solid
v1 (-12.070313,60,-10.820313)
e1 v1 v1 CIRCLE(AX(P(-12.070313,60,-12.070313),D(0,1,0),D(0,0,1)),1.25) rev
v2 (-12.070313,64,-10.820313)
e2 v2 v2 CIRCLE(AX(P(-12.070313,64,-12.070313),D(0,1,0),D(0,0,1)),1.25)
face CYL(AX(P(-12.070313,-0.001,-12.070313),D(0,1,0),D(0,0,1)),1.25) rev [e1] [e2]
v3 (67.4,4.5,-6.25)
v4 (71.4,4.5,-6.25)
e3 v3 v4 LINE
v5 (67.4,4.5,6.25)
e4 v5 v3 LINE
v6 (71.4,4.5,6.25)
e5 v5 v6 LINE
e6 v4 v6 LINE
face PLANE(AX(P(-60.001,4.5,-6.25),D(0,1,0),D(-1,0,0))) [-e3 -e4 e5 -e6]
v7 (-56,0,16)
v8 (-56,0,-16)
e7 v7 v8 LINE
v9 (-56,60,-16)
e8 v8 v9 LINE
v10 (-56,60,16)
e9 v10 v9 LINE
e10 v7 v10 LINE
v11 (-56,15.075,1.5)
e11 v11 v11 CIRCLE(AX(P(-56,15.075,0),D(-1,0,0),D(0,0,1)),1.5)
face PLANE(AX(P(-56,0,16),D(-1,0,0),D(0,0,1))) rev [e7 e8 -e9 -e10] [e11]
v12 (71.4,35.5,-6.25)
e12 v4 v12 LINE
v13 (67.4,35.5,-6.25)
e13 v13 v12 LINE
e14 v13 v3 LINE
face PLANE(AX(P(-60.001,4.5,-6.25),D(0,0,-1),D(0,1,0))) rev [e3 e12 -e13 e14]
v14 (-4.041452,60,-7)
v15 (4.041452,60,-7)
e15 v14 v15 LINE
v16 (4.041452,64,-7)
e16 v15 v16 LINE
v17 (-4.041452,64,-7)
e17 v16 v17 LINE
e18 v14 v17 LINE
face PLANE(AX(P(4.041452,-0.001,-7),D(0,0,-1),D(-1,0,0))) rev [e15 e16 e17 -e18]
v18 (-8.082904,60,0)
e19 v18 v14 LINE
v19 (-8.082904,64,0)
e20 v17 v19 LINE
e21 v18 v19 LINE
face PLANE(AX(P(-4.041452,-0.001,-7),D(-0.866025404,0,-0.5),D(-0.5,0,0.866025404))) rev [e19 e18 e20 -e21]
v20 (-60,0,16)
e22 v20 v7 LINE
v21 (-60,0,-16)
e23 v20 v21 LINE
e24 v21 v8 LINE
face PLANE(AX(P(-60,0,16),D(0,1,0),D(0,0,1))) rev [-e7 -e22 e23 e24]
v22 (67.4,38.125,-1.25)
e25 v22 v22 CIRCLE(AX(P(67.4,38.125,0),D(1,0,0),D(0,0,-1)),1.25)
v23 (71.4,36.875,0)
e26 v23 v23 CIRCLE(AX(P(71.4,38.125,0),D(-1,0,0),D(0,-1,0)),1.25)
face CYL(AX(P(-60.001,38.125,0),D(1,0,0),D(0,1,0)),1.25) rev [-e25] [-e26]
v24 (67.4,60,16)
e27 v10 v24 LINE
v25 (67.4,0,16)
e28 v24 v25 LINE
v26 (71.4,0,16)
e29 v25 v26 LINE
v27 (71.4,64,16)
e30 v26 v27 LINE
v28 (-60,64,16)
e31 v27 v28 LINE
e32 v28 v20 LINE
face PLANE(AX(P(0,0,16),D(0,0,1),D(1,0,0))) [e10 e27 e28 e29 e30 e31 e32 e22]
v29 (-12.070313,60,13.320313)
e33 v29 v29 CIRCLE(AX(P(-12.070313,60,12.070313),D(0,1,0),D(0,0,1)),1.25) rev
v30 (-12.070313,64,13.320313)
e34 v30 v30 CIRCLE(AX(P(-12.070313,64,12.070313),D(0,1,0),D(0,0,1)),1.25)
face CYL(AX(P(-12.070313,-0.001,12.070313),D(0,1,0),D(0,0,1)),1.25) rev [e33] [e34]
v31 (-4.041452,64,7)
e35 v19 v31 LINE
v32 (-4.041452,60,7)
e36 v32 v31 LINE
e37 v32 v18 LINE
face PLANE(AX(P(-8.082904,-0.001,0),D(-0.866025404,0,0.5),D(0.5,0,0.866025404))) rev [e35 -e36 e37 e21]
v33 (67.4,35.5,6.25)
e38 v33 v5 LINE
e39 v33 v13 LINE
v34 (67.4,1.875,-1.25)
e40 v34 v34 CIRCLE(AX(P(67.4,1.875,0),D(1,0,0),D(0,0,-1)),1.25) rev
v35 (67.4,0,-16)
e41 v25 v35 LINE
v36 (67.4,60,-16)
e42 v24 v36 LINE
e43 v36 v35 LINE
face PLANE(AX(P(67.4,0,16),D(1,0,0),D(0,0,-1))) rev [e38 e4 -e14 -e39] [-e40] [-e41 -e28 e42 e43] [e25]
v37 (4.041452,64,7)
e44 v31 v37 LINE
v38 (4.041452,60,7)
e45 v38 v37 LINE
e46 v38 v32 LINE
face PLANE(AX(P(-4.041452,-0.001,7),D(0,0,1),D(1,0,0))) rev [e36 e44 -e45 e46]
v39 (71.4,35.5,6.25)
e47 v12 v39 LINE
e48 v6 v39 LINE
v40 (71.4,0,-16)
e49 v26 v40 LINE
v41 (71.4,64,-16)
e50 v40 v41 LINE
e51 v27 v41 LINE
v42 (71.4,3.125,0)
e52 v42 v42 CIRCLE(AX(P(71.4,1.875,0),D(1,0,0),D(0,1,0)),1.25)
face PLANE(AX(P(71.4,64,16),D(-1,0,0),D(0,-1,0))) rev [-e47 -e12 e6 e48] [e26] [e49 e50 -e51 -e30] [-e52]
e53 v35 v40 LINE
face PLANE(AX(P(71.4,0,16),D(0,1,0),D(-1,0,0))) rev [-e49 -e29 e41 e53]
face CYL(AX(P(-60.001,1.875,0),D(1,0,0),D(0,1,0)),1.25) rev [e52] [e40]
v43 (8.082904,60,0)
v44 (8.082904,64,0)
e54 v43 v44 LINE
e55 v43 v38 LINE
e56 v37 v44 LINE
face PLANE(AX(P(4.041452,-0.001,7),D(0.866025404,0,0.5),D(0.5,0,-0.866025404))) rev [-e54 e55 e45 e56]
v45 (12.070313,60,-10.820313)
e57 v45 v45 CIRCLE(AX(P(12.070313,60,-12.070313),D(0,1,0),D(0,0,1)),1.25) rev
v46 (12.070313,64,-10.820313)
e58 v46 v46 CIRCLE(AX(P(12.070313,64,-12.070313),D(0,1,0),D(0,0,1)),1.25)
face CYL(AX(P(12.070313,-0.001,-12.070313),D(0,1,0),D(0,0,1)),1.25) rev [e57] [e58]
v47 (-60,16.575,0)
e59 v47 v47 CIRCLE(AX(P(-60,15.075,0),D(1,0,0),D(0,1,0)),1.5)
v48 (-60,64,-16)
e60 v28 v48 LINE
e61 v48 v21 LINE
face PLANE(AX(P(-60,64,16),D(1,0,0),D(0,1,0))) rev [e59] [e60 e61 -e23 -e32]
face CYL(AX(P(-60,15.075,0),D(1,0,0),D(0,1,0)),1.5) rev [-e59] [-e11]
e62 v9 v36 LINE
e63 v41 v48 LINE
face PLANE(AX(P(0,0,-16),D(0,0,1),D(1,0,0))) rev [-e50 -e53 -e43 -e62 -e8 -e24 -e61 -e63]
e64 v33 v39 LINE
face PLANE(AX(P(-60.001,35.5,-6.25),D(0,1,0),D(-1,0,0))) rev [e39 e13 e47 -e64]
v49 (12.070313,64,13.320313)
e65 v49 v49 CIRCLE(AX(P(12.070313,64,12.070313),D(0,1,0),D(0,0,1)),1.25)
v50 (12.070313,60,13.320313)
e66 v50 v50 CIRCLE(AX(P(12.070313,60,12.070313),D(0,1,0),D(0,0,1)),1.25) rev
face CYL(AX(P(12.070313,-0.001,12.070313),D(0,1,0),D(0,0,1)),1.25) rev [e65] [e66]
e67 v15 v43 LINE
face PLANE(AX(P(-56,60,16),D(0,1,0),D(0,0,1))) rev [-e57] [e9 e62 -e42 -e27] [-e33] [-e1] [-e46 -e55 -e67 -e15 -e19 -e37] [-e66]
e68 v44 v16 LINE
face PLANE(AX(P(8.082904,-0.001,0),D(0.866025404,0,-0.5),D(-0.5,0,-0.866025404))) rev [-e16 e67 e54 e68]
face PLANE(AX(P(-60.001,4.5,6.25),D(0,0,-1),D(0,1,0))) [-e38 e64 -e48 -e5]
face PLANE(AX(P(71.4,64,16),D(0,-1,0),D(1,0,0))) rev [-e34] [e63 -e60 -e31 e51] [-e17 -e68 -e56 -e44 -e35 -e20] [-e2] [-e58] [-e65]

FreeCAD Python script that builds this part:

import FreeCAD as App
import Part
import Sketcher

V = App.Vector
Q = App.Units.Quantity

doc = App.newDocument("Part")
params = doc.addObject("Spreadsheet::Sheet", "Params")
for row, (alias, value) in enumerate([
    ("sketch1_width", "4 mm"),
    ("sketch1_height", "60 mm"),
    ("sketch1_height2", "64 mm"),
    ("sketch1_width2", "123.4 mm"),
    ("pad1_length", "32 mm"),
    ("sketch2_diameter", "2.5 mm"),
    ("sketch3_diameter", "2.5 mm"),
    ("sketch4_width", "31 mm"),
    ("sketch4_height", "12.5 mm"),
    ("sketch5_diameter", "3 mm"),
    ("sketch6_diameter", "2.5 mm"),
    ("sketch7_diameter", "2.5 mm"),
    ("sketch8_diameter", "2.5 mm"),
    ("sketch9_diameter", "2.5 mm"),
], start=1):
    params.set(f"A{row}", alias)
    params.set(f"B{row}", "=" + value)
    params.setAlias(f"B{row}", alias)

body = doc.addObject("PartDesign::Body", "Body")

# Sketch on XY plane
sketch1 = body.newObject("Sketcher::SketchObject", "Sketch")
sketch1.AttachmentSupport = (doc.getObject("XY_Plane"), [""])
sketch1.MapMode = "FlatFace"
sketch1.addGeometry([
    Part.LineSegment(V(-56, 0, 0), V(-56, 60, 0)),  # 0
    Part.LineSegment(V(-56, 60, 0), V(67.4, 60, 0)),  # 1
    Part.LineSegment(V(67.4, 60, 0), V(67.4, 0, 0)),  # 2
    Part.LineSegment(V(67.4, 0, 0), V(71.4, 0, 0)),  # 3
    Part.LineSegment(V(71.4, 0, 0), V(71.4, 64, 0)),  # 4
    Part.LineSegment(V(71.4, 64, 0), V(-60, 64, 0)),  # 5
    Part.LineSegment(V(-60, 64, 0), V(-60, 0, 0)),  # 6
    Part.LineSegment(V(-60, 0, 0), V(-56, 0, 0)),  # 7
], False)
sketch1.addConstraint([
    Sketcher.Constraint("Coincident", 0, 2, 1, 1),
    Sketcher.Constraint("Coincident", 1, 2, 2, 1),
    Sketcher.Constraint("Coincident", 2, 2, 3, 1),
    Sketcher.Constraint("Coincident", 3, 2, 4, 1),
    Sketcher.Constraint("Coincident", 4, 2, 5, 1),
    Sketcher.Constraint("Coincident", 5, 2, 6, 1),
    Sketcher.Constraint("Coincident", 6, 2, 7, 1),
    Sketcher.Constraint("Coincident", 7, 2, 0, 1),
    Sketcher.Constraint("Vertical", 0),
    Sketcher.Constraint("Horizontal", 1),
    Sketcher.Constraint("Vertical", 2),
    Sketcher.Constraint("Horizontal", 3),
    Sketcher.Constraint("Vertical", 4),
    Sketcher.Constraint("Horizontal", 5),
    Sketcher.Constraint("Vertical", 6),
    Sketcher.Constraint("Horizontal", 7),
    Sketcher.Constraint("PointOnObject", 2, 2, -1),
    Sketcher.Constraint("PointOnObject", 6, 2, -1),
    Sketcher.Constraint("Equal", 3, 7),
    Sketcher.Constraint("DistanceX", 3, 1, 3, 2, Q("4 mm")),
    Sketcher.Constraint("DistanceY", 0, 1, 0, 2, Q("60 mm")),
    Sketcher.Constraint("DistanceY", 4, 1, 4, 2, Q("64 mm")),
    Sketcher.Constraint("DistanceX", 1, 1, 1, 2, Q("123.4 mm")),
    Sketcher.Constraint("DistanceX", 0, 2, -1, 1, Q("56 mm")),
])
sketch1.setExpression("Constraints[19]", "Params.sketch1_width")
sketch1.setExpression("Constraints[20]", "Params.sketch1_height")
sketch1.setExpression("Constraints[21]", "Params.sketch1_height2")
sketch1.setExpression("Constraints[22]", "Params.sketch1_width2")
pad1 = body.newObject("PartDesign::Pad", "Pad")
pad1.Profile = sketch1
pad1.setExpression("Length", "Params.pad1_length")
pad1.Midplane = True

# Sketch on YZ plane
sketch2 = body.newObject("Sketcher::SketchObject", "Sketch001")
sketch2.AttachmentSupport = (doc.getObject("YZ_Plane"), [""])
sketch2.MapMode = "FlatFace"
sketch2.AttachmentOffset = App.Placement(V(0, 0, 71.4), App.Rotation())
sketch2.addGeometry(Part.Circle(V(1.9, 0, 0), V(0, 0, 1), 1.2), False)
sketch2.addConstraint([
    Sketcher.Constraint("PointOnObject", 0, 3, -1),
    Sketcher.Constraint("Diameter", 0, Q("2.5 mm")),
    Sketcher.Constraint("DistanceX", -1, 1, 0, 3, Q("1.875 mm")),
])
sketch2.setExpression("Constraints[1]", "Params.sketch2_diameter")
pocket1 = body.newObject("PartDesign::Pocket", "Pocket")
pocket1.Profile = sketch2
pocket1.Type = "UpToFirst"

# Sketch on YZ plane
sketch3 = body.newObject("Sketcher::SketchObject", "Sketch002")
sketch3.AttachmentSupport = (doc.getObject("YZ_Plane"), [""])
sketch3.MapMode = "FlatFace"
sketch3.AttachmentOffset = App.Placement(V(0, 0, 71.4), App.Rotation())
sketch3.addGeometry(Part.Circle(V(38.1, 0, 0), V(0, 0, 1), 1.2), False)
sketch3.addConstraint([
    Sketcher.Constraint("PointOnObject", 0, 3, -1),
    Sketcher.Constraint("Diameter", 0, Q("2.5 mm")),
    Sketcher.Constraint("DistanceX", -1, 1, 0, 3, Q("38.125 mm")),
])
sketch3.setExpression("Constraints[1]", "Params.sketch3_diameter")
pocket2 = body.newObject("PartDesign::Pocket", "Pocket001")
pocket2.Profile = sketch3
pocket2.Type = "UpToFirst"

# Sketch on YZ plane
sketch4 = body.newObject("Sketcher::SketchObject", "Sketch003")
sketch4.AttachmentSupport = (doc.getObject("YZ_Plane"), [""])
sketch4.MapMode = "FlatFace"
sketch4.AttachmentOffset = App.Placement(V(0, 0, 71.4), App.Rotation())
sketch4.addGeometry([
    Part.LineSegment(V(36, 6, 0), V(4, 6, 0)),
    Part.LineSegment(V(4, 6, 0), V(4, -6, 0)),
    Part.LineSegment(V(4, -6, 0), V(36, -6, 0)),
    Part.LineSegment(V(36, -6, 0), V(36, 6, 0)),
], False)
sketch4.addConstraint([
    Sketcher.Constraint("Coincident", 0, 2, 1, 1),
    Sketcher.Constraint("Coincident", 1, 2, 2, 1),
    Sketcher.Constraint("Coincident", 2, 2, 3, 1),
    Sketcher.Constraint("Coincident", 3, 2, 0, 1),
    Sketcher.Constraint("Horizontal", 0),
    Sketcher.Constraint("Vertical", 1),
    Sketcher.Constraint("Horizontal", 2),
    Sketcher.Constraint("Vertical", 3),
    Sketcher.Constraint("DistanceX", 0, 2, 0, 1, Q("31 mm")),
    Sketcher.Constraint("DistanceY", 1, 2, 1, 1, Q("12.5 mm")),
    Sketcher.Constraint("DistanceX", -1, 1, 0, 2, Q("4.5 mm")),
    Sketcher.Constraint("DistanceY", -1, 1, 0, 2, Q("6.25 mm")),
])
sketch4.setExpression("Constraints[8]", "Params.sketch4_width")
sketch4.setExpression("Constraints[9]", "Params.sketch4_height")
pocket3 = body.newObject("PartDesign::Pocket", "Pocket002")
pocket3.Profile = sketch4
pocket3.Type = "UpToFirst"

# Sketch on YZ plane
sketch5 = body.newObject("Sketcher::SketchObject", "Sketch004")
sketch5.AttachmentSupport = (doc.getObject("YZ_Plane"), [""])
sketch5.MapMode = "FlatFace"
sketch5.AttachmentOffset = App.Placement(V(0, 0, 71.4), App.Rotation())
sketch5.addGeometry(Part.Circle(V(15.1, 0, 0), V(0, 0, 1), 1.5), False)
sketch5.addConstraint([
    Sketcher.Constraint("PointOnObject", 0, 3, -1),
    Sketcher.Constraint("Diameter", 0, Q("3 mm")),
    Sketcher.Constraint("DistanceX", -1, 1, 0, 3, Q("15.075 mm")),
])
sketch5.setExpression("Constraints[1]", "Params.sketch5_diameter")
pocket4 = body.newObject("PartDesign::Pocket", "Pocket003")
pocket4.Profile = sketch5
pocket4.Type = "ThroughAll"

# Sketch on XZ plane
sketch6 = body.newObject("Sketcher::SketchObject", "Sketch005")
sketch6.AttachmentSupport = (doc.getObject("XZ_Plane"), [""])
sketch6.MapMode = "FlatFace"
sketch6.AttachmentOffset = App.Placement(V(0, 0, -64), App.Rotation())
sketch6.addGeometry(Part.Circle(V(-12.1, -12.1, 0), V(0, 0, 1), 1.2), False)
sketch6.addConstraint([
    Sketcher.Constraint("Diameter", 0, Q("2.5 mm")),
    Sketcher.Constraint("DistanceX", 0, 3, -1, 1, Q("12.070313 mm")),
    Sketcher.Constraint("DistanceY", 0, 3, -1, 1, Q("12.070313 mm")),
])
sketch6.setExpression("Constraints[0]", "Params.sketch6_diameter")
pocket5 = body.newObject("PartDesign::Pocket", "Pocket004")
pocket5.Profile = sketch6
pocket5.Type = "UpToFirst"
pocket5.Reversed = True

# Sketch on XZ plane
sketch7 = body.newObject("Sketcher::SketchObject", "Sketch006")
sketch7.AttachmentSupport = (doc.getObject("XZ_Plane"), [""])
sketch7.MapMode = "FlatFace"
sketch7.AttachmentOffset = App.Placement(V(0, 0, -64), App.Rotation())
sketch7.addGeometry(Part.Circle(V(12.1, -12.1, 0), V(0, 0, 1), 1.2), False)
sketch7.addConstraint([
    Sketcher.Constraint("Diameter", 0, Q("2.5 mm")),
    Sketcher.Constraint("DistanceX", -1, 1, 0, 3, Q("12.070313 mm")),
    Sketcher.Constraint("DistanceY", 0, 3, -1, 1, Q("12.070313 mm")),
])
sketch7.setExpression("Constraints[0]", "Params.sketch7_diameter")
pocket6 = body.newObject("PartDesign::Pocket", "Pocket005")
pocket6.Profile = sketch7
pocket6.Type = "UpToFirst"
pocket6.Reversed = True

# Sketch on XZ plane
sketch8 = body.newObject("Sketcher::SketchObject", "Sketch007")
sketch8.AttachmentSupport = (doc.getObject("XZ_Plane"), [""])
sketch8.MapMode = "FlatFace"
sketch8.AttachmentOffset = App.Placement(V(0, 0, -64), App.Rotation())
sketch8.addGeometry(Part.Circle(V(12.1, 12.1, 0), V(0, 0, 1), 1.2), False)
sketch8.addConstraint([
    Sketcher.Constraint("Diameter", 0, Q("2.5 mm")),
    Sketcher.Constraint("DistanceX", -1, 1, 0, 3, Q("12.070313 mm")),
    Sketcher.Constraint("DistanceY", -1, 1, 0, 3, Q("12.070313 mm")),
])
sketch8.setExpression("Constraints[0]", "Params.sketch8_diameter")
pocket7 = body.newObject("PartDesign::Pocket", "Pocket006")
pocket7.Profile = sketch8
pocket7.Type = "UpToFirst"
pocket7.Reversed = True

# Sketch on XZ plane
sketch9 = body.newObject("Sketcher::SketchObject", "Sketch008")
sketch9.AttachmentSupport = (doc.getObject("XZ_Plane"), [""])
sketch9.MapMode = "FlatFace"
sketch9.AttachmentOffset = App.Placement(V(0, 0, -64), App.Rotation())
sketch9.addGeometry(Part.Circle(V(-12.1, 12.1, 0), V(0, 0, 1), 1.2), False)
sketch9.addConstraint([
    Sketcher.Constraint("Diameter", 0, Q("2.5 mm")),
    Sketcher.Constraint("DistanceX", 0, 3, -1, 1, Q("12.070313 mm")),
    Sketcher.Constraint("DistanceY", -1, 1, 0, 3, Q("12.070313 mm")),
])
sketch9.setExpression("Constraints[0]", "Params.sketch9_diameter")
pocket8 = body.newObject("PartDesign::Pocket", "Pocket007")
pocket8.Profile = sketch9
pocket8.Type = "UpToFirst"
pocket8.Reversed = True

# Sketch on XZ plane
sketch10 = body.newObject("Sketcher::SketchObject", "Sketch009")
sketch10.AttachmentSupport = (doc.getObject("XZ_Plane"), [""])
sketch10.MapMode = "FlatFace"
sketch10.AttachmentOffset = App.Placement(V(0, 0, -64), App.Rotation())
sketch10.addGeometry([
    Part.LineSegment(V(4, 7, 0), V(8, 0, 0)),  # 0
    Part.LineSegment(V(8, 0, 0), V(4, -7, 0)),  # 1
    Part.LineSegment(V(4, -7, 0), V(-4, -7, 0)),  # 2
    Part.LineSegment(V(-4, -7, 0), V(-8, 0, 0)),  # 3
    Part.LineSegment(V(-8, 0, 0), V(-4, 7, 0)),  # 4
    Part.LineSegment(V(-4, 7, 0), V(4, 7, 0)),  # 5
], False)
sketch10.addConstraint([
    Sketcher.Constraint("Coincident", 0, 2, 1, 1),
    Sketcher.Constraint("Coincident", 1, 2, 2, 1),
    Sketcher.Constraint("Coincident", 2, 2, 3, 1),
    Sketcher.Constraint("Coincident", 3, 2, 4, 1),
    Sketcher.Constraint("Coincident", 4, 2, 5, 1),
    Sketcher.Constraint("Coincident", 5, 2, 0, 1),
    Sketcher.Constraint("Horizontal", 2),
    Sketcher.Constraint("Horizontal", 5),
    Sketcher.Constraint("Symmetric", 0, 2, 3, 2, -1, 1),
    Sketcher.Constraint("Symmetric", 1, 2, 4, 2, -1, 1),
    Sketcher.Constraint("PointOnObject", 0, 2, -1),
    Sketcher.Constraint("Parallel", 0, 3),
    Sketcher.Constraint("Vertical", 2, 2, 4, 2),
    Sketcher.Constraint("Angle", 0, Q("-60 deg")),
    Sketcher.Constraint("DistanceY", 1, 2, -1, 1, Q("7 mm")),
    Sketcher.Constraint("DistanceX", 2, 2, 2, 1, Q("8.082904 mm")),
])
pocket9 = body.newObject("PartDesign::Pocket", "Pocket008")
pocket9.Profile = sketch10
pocket9.Type = "UpToFirst"
pocket9.Reversed = True

doc.recompute()
